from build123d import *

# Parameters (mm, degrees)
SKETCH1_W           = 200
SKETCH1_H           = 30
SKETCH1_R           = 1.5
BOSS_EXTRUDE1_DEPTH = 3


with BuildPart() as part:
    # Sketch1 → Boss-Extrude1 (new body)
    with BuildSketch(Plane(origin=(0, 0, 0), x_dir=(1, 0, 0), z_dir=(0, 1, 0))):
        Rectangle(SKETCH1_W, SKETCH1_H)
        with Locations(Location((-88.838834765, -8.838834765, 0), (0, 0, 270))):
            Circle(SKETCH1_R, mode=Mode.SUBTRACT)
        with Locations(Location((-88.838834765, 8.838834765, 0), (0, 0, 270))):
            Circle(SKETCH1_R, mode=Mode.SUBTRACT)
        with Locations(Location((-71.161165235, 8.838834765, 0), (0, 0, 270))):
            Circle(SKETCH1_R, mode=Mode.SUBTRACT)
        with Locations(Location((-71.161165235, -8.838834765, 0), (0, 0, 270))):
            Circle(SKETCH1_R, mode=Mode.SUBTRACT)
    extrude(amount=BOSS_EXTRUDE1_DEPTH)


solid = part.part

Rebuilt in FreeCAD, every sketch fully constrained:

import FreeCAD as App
import Part
import Sketcher

V = App.Vector

doc = App.newDocument("Part")
params = doc.addObject("Spreadsheet::Sheet", "Params")
for row, (alias, value) in enumerate([
    ("sketch1_diameter", "3 mm"),
    ("sketch1_width", "200 mm"),
    ("sketch1_height", "30 mm"),
    ("pad1_length", "3 mm"),
], start=1):
    params.set(f"A{row}", alias)
    params.set(f"B{row}", "=" + value)
    params.setAlias(f"B{row}", alias)

body = doc.addObject("PartDesign::Body", "Body")

# Sketch on XZ plane
sketch1 = body.newObject("Sketcher::SketchObject", "Sketch")
sketch1.AttachmentSupport = (doc.getObject("XZ_Plane"), [""])
sketch1.MapMode = "FlatFace"
sketch1.addGeometry(Part.LineSegment(V(-100, -15, 0), V(-100, 15, 0)), False)
sketch1.addGeometry(Part.LineSegment(V(-100, 15, 0), V(100, 15, 0)), False)
sketch1.addGeometry(Part.LineSegment(V(100, 15, 0), V(100, -15, 0)), False)
sketch1.addGeometry(Part.LineSegment(V(100, -15, 0), V(-100, -15, 0)), False)
sketch1.addGeometry(Part.Circle(V(-88.838835, 8.838835, 0), V(0, 0, 1), 1.5), False)
sketch1.addGeometry(Part.Circle(V(-71.161165, 8.838835, 0), V(0, 0, 1), 1.5), False)
sketch1.addGeometry(Part.Circle(V(-88.838835, -8.838835, 0), V(0, 0, 1), 1.5), False)
sketch1.addGeometry(Part.Circle(V(-71.161165, -8.838835, 0), V(0, 0, 1), 1.5), False)
sketch1.addConstraint(Sketcher.Constraint("Coincident", 0, 2, 1, 1))
sketch1.addConstraint(Sketcher.Constraint("Coincident", 1, 2, 2, 1))
sketch1.addConstraint(Sketcher.Constraint("Coincident", 2, 2, 3, 1))
sketch1.addConstraint(Sketcher.Constraint("Coincident", 3, 2, 0, 1))
sketch1.addConstraint(Sketcher.Constraint("Vertical", 0))
sketch1.addConstraint(Sketcher.Constraint("Horizontal", 1))
sketch1.addConstraint(Sketcher.Constraint("Vertical", 2))
sketch1.addConstraint(Sketcher.Constraint("Horizontal", 3))
sketch1.addConstraint(Sketcher.Constraint("Equal", 4, 5))
sketch1.addConstraint(Sketcher.Constraint("Equal", 5, 6))
sketch1.addConstraint(Sketcher.Constraint("Equal", 6, 7))
sketch1.addConstraint(Sketcher.Constraint("Symmetric", 0, 2, 2, 2, -1, 1))
sketch1.addConstraint(Sketcher.Constraint("Symmetric", 4, 3, 6, 3, -1))
sketch1.addConstraint(Sketcher.Constraint("Symmetric", 5, 3, 7, 3, -1))
sketch1.addConstraint(Sketcher.Constraint("Horizontal", 4, 3, 5, 3))
sketch1.addConstraint(Sketcher.Constraint("Diameter", 4, 3.0))
sketch1.addConstraint(Sketcher.Constraint("DistanceX", 1, 1, 1, 2, 200.0))
sketch1.addConstraint(Sketcher.Constraint("DistanceY", 0, 1, 0, 2, 30.0))
sketch1.addConstraint(Sketcher.Constraint("DistanceX", 4, 3, 5, 3, 17.67767))
sketch1.addConstraint(Sketcher.Constraint("DistanceY", 6, 3, 4, 3, 17.67767))
sketch1.addConstraint(Sketcher.Constraint("DistanceX", 4, 3, -1, 1, 88.838835))
sketch1.setExpression("Constraints[15]", "Params.sketch1_diameter")
sketch1.setExpression("Constraints[16]", "Params.sketch1_width")
sketch1.setExpression("Constraints[17]", "Params.sketch1_height")
pad1 = body.newObject("PartDesign::Pad", "Pad")
pad1.Profile = sketch1
pad1.setExpression("Length", "Params.pad1_length")
pad1.Reversed = True

doc.recompute()
